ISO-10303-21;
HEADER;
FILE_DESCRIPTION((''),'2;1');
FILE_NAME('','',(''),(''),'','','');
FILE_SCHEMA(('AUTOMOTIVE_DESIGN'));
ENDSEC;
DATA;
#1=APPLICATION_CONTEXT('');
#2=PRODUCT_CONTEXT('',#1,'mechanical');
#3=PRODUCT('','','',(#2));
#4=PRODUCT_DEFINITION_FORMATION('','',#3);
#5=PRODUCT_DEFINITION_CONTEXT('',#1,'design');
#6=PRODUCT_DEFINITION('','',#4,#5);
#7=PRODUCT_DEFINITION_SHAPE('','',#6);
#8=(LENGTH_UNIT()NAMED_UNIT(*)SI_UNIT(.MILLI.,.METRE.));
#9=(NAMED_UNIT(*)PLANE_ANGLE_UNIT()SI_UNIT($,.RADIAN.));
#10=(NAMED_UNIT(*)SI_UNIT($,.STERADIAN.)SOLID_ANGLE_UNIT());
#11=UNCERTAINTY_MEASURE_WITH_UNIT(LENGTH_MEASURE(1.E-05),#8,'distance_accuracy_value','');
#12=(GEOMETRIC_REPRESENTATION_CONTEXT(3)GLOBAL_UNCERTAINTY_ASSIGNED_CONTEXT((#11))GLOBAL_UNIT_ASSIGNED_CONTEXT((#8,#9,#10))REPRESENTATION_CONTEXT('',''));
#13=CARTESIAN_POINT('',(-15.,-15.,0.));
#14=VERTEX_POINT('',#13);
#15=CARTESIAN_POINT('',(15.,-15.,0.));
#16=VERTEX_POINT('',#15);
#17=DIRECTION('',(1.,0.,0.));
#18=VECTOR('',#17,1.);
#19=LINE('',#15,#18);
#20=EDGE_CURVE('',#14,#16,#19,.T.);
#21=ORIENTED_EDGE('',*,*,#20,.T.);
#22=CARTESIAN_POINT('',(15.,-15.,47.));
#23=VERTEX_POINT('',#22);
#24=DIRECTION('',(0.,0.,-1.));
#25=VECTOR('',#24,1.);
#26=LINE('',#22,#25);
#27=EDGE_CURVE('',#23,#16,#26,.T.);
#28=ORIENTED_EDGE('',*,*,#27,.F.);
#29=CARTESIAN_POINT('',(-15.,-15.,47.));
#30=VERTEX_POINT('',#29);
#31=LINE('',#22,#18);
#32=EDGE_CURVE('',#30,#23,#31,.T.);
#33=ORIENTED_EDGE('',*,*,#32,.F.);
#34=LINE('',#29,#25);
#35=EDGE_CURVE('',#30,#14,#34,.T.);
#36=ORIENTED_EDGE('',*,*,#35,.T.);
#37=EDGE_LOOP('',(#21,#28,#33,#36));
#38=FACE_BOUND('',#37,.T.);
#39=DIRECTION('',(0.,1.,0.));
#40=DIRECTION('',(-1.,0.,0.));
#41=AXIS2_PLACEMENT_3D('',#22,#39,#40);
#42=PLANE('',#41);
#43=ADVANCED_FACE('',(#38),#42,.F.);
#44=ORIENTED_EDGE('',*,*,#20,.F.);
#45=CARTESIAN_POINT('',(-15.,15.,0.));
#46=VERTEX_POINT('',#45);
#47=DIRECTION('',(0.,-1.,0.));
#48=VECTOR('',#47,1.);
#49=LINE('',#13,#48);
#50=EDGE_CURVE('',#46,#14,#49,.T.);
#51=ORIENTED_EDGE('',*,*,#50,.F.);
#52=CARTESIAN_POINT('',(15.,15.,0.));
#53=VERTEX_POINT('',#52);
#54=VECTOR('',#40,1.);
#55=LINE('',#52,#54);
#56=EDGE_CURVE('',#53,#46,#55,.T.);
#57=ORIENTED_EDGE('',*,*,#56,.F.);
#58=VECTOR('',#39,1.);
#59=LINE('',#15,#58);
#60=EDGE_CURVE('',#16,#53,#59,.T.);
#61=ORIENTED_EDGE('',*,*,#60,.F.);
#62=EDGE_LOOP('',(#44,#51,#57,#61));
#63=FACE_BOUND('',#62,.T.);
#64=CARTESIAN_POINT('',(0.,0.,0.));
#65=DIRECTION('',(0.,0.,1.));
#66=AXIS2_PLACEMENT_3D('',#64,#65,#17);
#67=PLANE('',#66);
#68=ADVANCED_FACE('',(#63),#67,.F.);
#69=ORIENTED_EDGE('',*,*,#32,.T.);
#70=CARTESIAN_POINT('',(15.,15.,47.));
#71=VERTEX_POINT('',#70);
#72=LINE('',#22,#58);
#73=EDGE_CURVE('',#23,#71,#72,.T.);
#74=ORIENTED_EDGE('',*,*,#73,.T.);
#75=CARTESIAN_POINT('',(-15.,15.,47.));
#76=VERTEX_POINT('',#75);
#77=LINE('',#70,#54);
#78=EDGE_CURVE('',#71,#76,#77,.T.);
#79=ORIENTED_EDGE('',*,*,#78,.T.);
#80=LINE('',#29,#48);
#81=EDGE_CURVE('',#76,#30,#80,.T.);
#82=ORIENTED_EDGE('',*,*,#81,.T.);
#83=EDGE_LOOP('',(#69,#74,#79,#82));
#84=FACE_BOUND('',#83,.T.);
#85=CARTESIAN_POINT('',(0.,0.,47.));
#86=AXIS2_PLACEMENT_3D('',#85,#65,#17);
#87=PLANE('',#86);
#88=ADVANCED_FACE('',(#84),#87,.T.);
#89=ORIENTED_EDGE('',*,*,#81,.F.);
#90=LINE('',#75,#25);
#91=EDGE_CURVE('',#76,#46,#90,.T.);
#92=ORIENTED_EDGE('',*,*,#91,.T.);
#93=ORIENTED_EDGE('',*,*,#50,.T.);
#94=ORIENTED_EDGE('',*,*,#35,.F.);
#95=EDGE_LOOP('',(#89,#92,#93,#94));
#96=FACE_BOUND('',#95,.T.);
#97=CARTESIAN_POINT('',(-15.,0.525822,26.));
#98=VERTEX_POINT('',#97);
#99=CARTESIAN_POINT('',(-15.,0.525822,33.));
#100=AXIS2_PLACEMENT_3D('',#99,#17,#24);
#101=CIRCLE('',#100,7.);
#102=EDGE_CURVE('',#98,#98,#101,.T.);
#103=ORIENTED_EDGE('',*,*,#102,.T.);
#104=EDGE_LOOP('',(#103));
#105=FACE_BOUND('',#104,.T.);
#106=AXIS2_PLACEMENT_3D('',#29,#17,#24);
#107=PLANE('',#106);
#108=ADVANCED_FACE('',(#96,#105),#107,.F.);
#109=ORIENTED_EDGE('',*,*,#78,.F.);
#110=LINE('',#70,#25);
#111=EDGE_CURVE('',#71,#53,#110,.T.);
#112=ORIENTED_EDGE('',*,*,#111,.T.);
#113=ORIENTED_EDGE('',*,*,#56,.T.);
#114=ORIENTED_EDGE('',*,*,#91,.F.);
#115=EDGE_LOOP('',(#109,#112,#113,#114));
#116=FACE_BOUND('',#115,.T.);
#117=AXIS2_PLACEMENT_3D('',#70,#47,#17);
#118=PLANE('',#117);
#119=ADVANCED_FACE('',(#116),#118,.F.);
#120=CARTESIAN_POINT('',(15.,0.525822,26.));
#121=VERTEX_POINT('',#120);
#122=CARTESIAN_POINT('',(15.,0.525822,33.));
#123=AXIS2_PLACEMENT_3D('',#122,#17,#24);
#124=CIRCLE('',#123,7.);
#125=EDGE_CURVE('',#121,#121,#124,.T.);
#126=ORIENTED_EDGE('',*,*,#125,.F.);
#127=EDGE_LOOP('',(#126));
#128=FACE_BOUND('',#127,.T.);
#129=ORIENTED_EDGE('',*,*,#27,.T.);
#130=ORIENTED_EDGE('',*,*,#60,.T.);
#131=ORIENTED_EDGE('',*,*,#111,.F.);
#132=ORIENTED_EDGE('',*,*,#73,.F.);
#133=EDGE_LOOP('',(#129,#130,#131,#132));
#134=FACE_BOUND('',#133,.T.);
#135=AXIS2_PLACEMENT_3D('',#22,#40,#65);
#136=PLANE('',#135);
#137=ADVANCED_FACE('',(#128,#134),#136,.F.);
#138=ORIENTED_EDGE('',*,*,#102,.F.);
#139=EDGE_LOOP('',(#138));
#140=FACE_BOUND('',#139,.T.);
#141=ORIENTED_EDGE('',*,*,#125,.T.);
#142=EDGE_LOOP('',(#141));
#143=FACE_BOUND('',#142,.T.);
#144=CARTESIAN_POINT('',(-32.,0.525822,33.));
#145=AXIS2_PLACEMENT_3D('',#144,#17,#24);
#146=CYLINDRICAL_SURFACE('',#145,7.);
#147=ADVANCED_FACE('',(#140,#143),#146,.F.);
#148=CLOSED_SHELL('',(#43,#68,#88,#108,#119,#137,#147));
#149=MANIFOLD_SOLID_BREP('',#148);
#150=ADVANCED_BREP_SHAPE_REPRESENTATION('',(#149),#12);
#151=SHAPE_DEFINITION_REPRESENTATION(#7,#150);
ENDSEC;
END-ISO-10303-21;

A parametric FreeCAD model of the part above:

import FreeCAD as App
import Part
import Sketcher

V = App.Vector

doc = App.newDocument("Part")
body = doc.addObject("PartDesign::Body", "Body")

sketch1 = body.newObject("Sketcher::SketchObject", "Sketch")
sketch1.AttachmentSupport = (doc.getObject("XY_Plane"), [""])
sketch1.MapMode = "FlatFace"
sketch1.addGeometry(Part.LineSegment(V(-15, 15, 0), V(-15, -15, 0)), False)
sketch1.addGeometry(Part.LineSegment(V(-15, -15, 0), V(15, -15, 0)), False)
sketch1.addGeometry(Part.LineSegment(V(15, -15, 0), V(15, 15, 0)), False)
sketch1.addGeometry(Part.LineSegment(V(15, 15, 0), V(-15, 15, 0)), False)
sketch1.addConstraint(Sketcher.Constraint("Coincident", 0, 2, 1, 1))
sketch1.addConstraint(Sketcher.Constraint("Coincident", 1, 2, 2, 1))
sketch1.addConstraint(Sketcher.Constraint("Coincident", 2, 2, 3, 1))
sketch1.addConstraint(Sketcher.Constraint("Coincident", 3, 2, 0, 1))
sketch1.addConstraint(Sketcher.Constraint("Vertical", 0))
sketch1.addConstraint(Sketcher.Constraint("Horizontal", 1))
sketch1.addConstraint(Sketcher.Constraint("Vertical", 2))
sketch1.addConstraint(Sketcher.Constraint("Horizontal", 3))
sketch1.addConstraint(Sketcher.Constraint("Symmetric", 0, 2, 2, 2, -1, 1))
sketch1.addConstraint(Sketcher.Constraint("Equal", 3, 0))
sketch1.addConstraint(Sketcher.Constraint("DistanceX", 1, 1, 1, 2, 30.0))
pad1 = body.newObject("PartDesign::Pad", "Pad")
pad1.Profile = sketch1
pad1.Length = 47

sketch2 = body.newObject("Sketcher::SketchObject", "Sketch001")
sketch2.AttachmentSupport = (doc.getObject("YZ_Plane"), [""])
sketch2.MapMode = "FlatFace"
sketch2.AttachmentOffset = App.Placement(V(0, 0, 15), App.Rotation())
sketch2.addGeometry(Part.Circle(V(1, 33, 0), V(0, 0, 1), 7), False)
sketch2.addConstraint(Sketcher.Constraint("Diameter", 0, 14.0))
sketch2.addConstraint(Sketcher.Constraint("DistanceY", -1, 1, 0, 3, 33.0))
sketch2.addConstraint(Sketcher.Constraint("DistanceX", -1, 1, 0, 3, 0.525822))
pocket1 = body.newObject("PartDesign::Pocket", "Pocket")
pocket1.Profile = sketch2
pocket1.Length = 47

doc.recompute()
